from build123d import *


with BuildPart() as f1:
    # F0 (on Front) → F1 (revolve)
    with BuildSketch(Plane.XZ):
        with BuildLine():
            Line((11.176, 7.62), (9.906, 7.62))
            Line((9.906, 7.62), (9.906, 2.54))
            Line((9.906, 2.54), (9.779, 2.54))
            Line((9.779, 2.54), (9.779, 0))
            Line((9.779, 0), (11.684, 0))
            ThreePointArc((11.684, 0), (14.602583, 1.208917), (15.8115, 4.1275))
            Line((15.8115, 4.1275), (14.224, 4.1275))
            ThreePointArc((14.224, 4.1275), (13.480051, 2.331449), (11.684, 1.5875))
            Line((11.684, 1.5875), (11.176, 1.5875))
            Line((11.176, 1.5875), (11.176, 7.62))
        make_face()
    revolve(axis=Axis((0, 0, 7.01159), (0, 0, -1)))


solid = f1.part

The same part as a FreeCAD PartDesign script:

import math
import FreeCAD as App
import Part
import Sketcher

V = App.Vector
Q = App.Units.Quantity

doc = App.newDocument("Part")
body = doc.addObject("PartDesign::Body", "Body")

# Sketch on XZ plane
sketch1 = doc.addObject("Sketcher::SketchObject", "Sketch")
body.addObject(sketch1)
sketch1.AttachmentSupport = (doc.XZ_Plane, [""])
sketch1.MapMode = "FlatFace"
sketch1.addGeometry([
    Part.LineSegment(V(11.18, 7.62, 0), V(9.91, 7.62, 0)),  # 0
    Part.LineSegment(V(9.91, 7.62, 0), V(9.91, 2.54, 0)),  # 1
    Part.LineSegment(V(9.91, 2.54, 0), V(9.78, 2.54, 0)),  # 2
    Part.LineSegment(V(9.78, 2.54, 0), V(9.78, 0, 0)),  # 3
    Part.LineSegment(V(9.78, 0, 0), V(11.68, 0, 0)),  # 4
    Part.ArcOfCircle(Part.Circle(V(11.68, 4.13, 0), V(0, 0, 1), 4.13), math.radians(-90), math.radians(0)),  # 5
    Part.LineSegment(V(15.81, 4.13, 0), V(14.22, 4.13, 0)),  # 6
    Part.ArcOfCircle(Part.Circle(V(11.68, 4.13, 0), V(0, 0, 1), 2.54), math.radians(-90), math.radians(0)),  # 7
    Part.LineSegment(V(11.68, 1.59, 0), V(11.18, 1.59, 0)),  # 8
    Part.LineSegment(V(11.18, 1.59, 0), V(11.18, 7.62, 0)),  # 9
], False)
sketch1.addConstraint([
    Sketcher.Constraint("Coincident", 0, 2, 1, 1),
    Sketcher.Constraint("Coincident", 1, 2, 2, 1),
    Sketcher.Constraint("Coincident", 2, 2, 3, 1),
    Sketcher.Constraint("Coincident", 3, 2, 4, 1),
    Sketcher.Constraint("Tangent", 4, 2, 5, 1),
    Sketcher.Constraint("Coincident", 5, 2, 6, 1),
    Sketcher.Constraint("Coincident", 6, 2, 7, 2),
    Sketcher.Constraint("Tangent", 7, 1, 8, 1),
    Sketcher.Constraint("Coincident", 8, 2, 9, 1),
    Sketcher.Constraint("Coincident", 9, 2, 0, 1),
    Sketcher.Constraint("Horizontal", 0),
    Sketcher.Constraint("Vertical", 1),
    Sketcher.Constraint("Horizontal", 2),
    Sketcher.Constraint("Vertical", 3),
    Sketcher.Constraint("Horizontal", 4),
    Sketcher.Constraint("Horizontal", 6),
    Sketcher.Constraint("Horizontal", 8),
    Sketcher.Constraint("Vertical", 9),
    Sketcher.Constraint("Coincident", 7, 3, 5, 3),
    Sketcher.Constraint("PointOnObject", 3, 2, -1),
    Sketcher.Constraint("Horizontal", 7, 3, 5, 2),
    Sketcher.Constraint("Radius", 7, Q("0.1 in")),
    Sketcher.Constraint("DistanceY", 1, 2, 1, 1, Q("0.2 in")),
    Sketcher.Constraint("DistanceY", 3, 2, 3, 1, Q("0.1 in")),
    Sketcher.Constraint("DistanceX", 0, 2, 0, 1, Q("0.05 in")),
    Sketcher.Constraint("DistanceX", 8, 2, 8, 1, Q("0.02 in")),
    Sketcher.Constraint("Radius", 5, Q("0.1625 in")),
    Sketcher.Constraint("DistanceX", 2, 2, 2, 1, Q("0.005 in")),
    Sketcher.Constraint("DistanceX", -1, 1, 5, 3, Q("0.46 in")),
])
revolution = doc.addObject("PartDesign::Revolution", "Revolution")
body.addObject(revolution)
revolution.Profile = sketch1
revolution.ReferenceAxis = (sketch1, ["V_Axis"])
revolution.Angle = 360

doc.recompute()
